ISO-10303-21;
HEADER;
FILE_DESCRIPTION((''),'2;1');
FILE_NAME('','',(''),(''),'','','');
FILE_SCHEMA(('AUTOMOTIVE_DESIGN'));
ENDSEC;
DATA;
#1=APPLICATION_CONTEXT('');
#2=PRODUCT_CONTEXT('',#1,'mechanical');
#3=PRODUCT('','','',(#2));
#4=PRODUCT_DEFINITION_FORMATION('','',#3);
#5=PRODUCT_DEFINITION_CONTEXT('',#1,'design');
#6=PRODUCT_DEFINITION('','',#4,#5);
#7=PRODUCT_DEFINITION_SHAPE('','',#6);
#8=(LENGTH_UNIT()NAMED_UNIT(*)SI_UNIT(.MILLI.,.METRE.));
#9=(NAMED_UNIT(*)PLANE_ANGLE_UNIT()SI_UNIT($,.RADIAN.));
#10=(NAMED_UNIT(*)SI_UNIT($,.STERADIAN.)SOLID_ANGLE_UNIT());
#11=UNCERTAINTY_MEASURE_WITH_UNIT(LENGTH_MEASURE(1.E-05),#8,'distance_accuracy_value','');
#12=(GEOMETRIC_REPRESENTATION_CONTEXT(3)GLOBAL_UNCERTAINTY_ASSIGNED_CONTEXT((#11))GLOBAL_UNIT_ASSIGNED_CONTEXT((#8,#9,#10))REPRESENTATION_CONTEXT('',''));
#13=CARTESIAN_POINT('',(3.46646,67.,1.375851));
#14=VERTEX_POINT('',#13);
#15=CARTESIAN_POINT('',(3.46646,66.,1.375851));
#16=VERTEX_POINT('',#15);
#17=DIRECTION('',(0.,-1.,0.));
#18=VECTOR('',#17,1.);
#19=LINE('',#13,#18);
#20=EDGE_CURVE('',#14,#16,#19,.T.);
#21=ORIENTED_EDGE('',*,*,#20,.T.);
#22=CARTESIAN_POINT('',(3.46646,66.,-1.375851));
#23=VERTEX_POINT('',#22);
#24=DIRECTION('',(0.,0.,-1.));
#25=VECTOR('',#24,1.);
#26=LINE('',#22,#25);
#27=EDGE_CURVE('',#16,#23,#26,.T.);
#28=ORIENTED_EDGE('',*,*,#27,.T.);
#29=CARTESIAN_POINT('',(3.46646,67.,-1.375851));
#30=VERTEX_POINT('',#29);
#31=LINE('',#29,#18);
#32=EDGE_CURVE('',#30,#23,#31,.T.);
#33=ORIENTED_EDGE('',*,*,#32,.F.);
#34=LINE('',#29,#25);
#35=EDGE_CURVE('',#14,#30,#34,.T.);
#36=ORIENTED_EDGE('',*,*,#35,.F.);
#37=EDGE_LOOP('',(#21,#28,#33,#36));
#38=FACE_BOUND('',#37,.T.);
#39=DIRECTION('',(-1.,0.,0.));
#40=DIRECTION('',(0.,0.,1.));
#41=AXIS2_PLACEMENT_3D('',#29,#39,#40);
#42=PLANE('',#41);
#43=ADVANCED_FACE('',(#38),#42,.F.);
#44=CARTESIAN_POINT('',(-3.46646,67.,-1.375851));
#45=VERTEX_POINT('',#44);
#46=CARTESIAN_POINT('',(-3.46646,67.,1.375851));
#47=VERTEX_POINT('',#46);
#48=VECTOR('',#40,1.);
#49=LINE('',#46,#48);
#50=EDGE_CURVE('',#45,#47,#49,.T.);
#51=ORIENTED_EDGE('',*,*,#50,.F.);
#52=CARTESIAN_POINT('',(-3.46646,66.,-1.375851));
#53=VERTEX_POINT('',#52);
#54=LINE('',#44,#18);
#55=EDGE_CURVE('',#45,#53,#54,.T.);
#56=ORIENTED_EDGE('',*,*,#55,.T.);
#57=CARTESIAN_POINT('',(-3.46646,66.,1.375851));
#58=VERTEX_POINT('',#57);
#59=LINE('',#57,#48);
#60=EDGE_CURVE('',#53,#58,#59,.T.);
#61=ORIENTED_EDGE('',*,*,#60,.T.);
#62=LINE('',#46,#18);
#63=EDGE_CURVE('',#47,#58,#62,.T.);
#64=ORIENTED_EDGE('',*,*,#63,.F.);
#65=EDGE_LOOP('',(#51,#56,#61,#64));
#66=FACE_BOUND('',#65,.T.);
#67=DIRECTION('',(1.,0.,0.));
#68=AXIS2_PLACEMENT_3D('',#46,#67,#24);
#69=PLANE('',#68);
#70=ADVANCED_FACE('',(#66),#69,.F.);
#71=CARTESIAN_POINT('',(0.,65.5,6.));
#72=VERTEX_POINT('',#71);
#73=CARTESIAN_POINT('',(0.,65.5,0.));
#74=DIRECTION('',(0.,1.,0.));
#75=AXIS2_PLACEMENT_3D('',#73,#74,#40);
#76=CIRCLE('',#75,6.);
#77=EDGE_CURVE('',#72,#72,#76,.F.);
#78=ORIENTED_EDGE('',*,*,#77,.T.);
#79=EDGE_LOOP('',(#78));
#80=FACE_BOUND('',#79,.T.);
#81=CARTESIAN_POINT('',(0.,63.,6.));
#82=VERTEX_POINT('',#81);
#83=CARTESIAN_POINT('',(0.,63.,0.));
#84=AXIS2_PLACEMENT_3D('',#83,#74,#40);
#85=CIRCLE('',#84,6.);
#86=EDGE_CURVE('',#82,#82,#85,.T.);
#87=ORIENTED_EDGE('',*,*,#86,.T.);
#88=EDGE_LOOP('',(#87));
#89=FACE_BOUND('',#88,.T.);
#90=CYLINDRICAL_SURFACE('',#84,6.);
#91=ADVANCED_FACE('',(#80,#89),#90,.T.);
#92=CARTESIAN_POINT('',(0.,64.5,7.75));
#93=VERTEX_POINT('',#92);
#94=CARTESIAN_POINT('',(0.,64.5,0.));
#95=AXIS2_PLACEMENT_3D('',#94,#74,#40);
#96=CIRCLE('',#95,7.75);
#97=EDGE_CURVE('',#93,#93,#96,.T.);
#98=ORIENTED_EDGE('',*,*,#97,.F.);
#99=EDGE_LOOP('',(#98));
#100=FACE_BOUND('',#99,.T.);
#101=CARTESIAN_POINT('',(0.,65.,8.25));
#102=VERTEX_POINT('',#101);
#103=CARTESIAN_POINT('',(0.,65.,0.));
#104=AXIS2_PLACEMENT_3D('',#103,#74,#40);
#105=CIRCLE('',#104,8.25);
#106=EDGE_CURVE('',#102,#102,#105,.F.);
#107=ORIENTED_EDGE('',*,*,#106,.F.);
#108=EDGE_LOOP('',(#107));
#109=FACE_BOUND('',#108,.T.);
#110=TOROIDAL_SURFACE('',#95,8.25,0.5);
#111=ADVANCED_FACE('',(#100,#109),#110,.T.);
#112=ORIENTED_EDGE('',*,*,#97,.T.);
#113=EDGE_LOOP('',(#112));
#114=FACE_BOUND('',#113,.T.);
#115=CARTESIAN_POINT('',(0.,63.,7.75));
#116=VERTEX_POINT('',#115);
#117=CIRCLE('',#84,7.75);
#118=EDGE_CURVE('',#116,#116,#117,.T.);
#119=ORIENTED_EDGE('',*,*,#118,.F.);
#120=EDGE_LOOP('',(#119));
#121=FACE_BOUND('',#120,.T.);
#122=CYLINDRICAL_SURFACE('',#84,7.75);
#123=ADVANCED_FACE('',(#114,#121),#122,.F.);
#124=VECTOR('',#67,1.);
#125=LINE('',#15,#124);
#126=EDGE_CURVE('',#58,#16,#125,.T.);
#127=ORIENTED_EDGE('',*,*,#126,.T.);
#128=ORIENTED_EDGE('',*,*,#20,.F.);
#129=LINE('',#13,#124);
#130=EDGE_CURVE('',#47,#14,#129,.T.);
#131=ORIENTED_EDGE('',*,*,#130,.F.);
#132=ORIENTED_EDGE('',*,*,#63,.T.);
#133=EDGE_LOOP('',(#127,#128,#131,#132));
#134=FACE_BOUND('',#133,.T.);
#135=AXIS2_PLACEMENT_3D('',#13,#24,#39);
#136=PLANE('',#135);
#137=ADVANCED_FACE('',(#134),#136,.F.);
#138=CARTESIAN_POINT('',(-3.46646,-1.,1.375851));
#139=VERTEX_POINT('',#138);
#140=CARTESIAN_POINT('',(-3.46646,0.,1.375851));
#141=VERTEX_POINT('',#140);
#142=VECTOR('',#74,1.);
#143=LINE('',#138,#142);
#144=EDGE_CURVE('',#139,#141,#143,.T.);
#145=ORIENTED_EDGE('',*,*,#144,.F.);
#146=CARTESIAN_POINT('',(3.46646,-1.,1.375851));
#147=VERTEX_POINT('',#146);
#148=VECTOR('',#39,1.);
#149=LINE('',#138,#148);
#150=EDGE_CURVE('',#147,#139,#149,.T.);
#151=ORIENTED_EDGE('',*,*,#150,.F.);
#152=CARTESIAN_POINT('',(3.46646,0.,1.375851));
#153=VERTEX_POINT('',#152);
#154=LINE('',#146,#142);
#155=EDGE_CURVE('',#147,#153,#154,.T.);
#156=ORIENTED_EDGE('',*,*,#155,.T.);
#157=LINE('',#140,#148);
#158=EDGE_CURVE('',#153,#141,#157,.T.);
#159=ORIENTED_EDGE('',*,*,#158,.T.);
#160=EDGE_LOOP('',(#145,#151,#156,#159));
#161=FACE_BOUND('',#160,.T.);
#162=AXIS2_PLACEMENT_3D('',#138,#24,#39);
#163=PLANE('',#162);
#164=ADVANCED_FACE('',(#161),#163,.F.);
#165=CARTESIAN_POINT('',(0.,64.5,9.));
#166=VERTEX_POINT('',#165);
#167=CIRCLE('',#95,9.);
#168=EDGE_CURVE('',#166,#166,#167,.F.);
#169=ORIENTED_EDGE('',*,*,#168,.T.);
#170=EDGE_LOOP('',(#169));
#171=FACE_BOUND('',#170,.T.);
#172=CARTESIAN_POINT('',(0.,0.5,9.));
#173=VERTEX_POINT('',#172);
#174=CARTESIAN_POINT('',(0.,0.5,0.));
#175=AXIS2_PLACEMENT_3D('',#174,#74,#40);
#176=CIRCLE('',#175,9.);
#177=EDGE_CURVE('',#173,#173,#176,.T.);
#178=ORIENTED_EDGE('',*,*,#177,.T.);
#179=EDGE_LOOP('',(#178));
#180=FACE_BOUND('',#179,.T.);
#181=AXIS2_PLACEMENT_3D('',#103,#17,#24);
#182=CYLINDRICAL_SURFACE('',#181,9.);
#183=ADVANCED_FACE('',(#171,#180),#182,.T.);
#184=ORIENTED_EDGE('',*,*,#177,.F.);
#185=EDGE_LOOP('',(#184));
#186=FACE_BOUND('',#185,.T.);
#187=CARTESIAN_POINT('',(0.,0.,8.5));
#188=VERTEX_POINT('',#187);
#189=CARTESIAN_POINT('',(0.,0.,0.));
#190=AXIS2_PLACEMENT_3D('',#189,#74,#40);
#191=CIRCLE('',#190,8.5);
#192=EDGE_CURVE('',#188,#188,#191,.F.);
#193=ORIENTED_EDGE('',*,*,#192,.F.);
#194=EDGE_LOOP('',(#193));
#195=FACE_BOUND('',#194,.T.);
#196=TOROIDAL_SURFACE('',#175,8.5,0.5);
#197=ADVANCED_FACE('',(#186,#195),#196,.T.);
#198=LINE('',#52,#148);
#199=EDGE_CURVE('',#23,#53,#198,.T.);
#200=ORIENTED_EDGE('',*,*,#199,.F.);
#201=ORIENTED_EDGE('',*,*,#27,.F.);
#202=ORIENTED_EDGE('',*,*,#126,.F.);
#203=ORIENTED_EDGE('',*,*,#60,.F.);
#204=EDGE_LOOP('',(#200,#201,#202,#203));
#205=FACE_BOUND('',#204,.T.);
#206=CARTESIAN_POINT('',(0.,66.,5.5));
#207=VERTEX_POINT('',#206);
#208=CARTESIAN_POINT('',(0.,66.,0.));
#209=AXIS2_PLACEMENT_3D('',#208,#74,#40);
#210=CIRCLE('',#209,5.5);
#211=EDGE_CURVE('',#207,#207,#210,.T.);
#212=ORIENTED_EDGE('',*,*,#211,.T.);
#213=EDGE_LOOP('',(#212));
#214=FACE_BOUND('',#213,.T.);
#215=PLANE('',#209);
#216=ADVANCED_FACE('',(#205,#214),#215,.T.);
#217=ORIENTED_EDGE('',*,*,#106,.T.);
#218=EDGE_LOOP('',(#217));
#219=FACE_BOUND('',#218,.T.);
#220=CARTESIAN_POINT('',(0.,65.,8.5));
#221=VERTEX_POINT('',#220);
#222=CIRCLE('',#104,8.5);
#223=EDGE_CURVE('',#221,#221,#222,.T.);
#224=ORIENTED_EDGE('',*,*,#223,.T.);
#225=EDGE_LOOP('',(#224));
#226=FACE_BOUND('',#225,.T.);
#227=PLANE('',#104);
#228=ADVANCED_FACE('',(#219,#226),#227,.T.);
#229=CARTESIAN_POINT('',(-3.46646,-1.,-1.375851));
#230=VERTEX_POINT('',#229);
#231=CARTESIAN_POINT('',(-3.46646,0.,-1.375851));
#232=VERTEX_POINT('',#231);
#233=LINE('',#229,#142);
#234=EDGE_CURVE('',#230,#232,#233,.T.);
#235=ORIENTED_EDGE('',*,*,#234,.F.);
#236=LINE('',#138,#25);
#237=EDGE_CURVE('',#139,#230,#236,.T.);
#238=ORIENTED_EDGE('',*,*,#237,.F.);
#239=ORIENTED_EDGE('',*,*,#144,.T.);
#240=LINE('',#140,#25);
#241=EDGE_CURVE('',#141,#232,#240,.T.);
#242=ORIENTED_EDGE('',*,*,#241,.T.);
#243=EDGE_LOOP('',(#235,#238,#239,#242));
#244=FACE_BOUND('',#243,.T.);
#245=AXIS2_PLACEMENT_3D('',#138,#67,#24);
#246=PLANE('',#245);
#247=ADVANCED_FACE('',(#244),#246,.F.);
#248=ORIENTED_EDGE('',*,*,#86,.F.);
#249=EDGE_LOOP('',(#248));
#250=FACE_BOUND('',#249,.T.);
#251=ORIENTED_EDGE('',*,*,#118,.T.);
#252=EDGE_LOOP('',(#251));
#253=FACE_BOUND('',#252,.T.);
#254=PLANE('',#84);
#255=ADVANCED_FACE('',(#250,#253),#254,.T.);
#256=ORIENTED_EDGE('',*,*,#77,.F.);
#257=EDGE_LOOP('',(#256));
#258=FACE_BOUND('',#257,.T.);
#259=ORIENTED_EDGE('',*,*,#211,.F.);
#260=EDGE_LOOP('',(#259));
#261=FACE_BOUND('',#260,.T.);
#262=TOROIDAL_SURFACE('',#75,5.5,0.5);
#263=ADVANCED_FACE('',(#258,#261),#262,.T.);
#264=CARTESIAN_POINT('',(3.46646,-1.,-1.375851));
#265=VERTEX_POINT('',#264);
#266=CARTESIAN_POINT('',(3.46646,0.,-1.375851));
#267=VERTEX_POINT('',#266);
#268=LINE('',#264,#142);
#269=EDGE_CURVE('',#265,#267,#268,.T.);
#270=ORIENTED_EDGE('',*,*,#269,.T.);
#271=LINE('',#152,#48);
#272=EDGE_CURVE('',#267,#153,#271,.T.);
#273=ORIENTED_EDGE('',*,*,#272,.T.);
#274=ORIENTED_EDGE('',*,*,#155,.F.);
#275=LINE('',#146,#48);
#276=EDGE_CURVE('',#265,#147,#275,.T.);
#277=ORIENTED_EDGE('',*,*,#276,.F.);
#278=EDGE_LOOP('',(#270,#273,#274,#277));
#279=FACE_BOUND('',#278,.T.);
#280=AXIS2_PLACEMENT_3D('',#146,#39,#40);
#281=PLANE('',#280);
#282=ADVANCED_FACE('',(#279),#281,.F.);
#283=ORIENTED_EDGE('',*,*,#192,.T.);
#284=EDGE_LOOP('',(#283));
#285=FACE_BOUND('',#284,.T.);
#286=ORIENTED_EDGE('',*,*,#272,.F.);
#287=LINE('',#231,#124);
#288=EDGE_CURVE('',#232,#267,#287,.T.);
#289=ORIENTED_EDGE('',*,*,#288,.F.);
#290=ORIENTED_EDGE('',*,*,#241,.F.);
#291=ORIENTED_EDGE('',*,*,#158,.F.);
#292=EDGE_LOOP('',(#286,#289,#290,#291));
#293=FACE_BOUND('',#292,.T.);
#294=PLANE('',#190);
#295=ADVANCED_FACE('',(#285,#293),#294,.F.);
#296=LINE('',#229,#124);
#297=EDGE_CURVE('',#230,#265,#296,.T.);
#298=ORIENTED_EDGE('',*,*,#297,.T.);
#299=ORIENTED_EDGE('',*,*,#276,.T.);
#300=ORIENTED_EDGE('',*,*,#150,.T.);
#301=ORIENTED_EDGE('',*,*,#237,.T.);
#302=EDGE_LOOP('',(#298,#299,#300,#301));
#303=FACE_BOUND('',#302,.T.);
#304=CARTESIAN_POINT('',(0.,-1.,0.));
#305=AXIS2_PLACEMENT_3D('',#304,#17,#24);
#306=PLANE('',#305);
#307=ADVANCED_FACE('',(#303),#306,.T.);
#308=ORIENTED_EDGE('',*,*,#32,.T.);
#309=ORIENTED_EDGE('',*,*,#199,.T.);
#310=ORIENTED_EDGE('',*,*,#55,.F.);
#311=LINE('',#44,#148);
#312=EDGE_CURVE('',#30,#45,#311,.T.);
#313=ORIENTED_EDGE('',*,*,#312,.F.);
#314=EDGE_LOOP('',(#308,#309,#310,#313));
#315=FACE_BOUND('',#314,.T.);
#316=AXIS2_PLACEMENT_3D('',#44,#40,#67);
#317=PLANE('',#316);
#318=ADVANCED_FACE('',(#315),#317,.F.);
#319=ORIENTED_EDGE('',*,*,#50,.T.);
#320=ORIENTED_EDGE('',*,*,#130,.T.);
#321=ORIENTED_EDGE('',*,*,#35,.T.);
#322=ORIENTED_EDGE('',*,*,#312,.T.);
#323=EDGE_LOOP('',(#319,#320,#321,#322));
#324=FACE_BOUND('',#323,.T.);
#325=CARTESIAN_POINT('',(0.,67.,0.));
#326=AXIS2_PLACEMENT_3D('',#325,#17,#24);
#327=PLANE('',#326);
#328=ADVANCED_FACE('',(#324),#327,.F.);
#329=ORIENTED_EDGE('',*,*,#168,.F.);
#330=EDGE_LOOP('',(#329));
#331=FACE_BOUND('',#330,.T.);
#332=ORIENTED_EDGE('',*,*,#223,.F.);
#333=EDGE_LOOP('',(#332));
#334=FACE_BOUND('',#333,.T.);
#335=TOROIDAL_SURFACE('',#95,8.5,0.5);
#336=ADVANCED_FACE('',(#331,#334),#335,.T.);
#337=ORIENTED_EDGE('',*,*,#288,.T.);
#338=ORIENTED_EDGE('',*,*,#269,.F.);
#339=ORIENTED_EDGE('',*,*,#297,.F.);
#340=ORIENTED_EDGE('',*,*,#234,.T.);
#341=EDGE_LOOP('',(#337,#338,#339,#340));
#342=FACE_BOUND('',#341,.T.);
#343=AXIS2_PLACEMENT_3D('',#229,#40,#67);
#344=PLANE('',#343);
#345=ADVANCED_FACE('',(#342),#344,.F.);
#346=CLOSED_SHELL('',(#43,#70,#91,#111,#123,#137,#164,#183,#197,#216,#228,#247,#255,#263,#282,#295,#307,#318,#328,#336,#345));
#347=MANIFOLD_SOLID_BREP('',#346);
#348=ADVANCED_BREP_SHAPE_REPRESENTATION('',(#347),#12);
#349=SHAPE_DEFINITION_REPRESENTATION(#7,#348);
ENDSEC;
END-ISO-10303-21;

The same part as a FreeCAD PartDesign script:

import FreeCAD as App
import Part
import Sketcher

V = App.Vector
Q = App.Units.Quantity


def edges_at(feature, points):
    """Names of the edges that pass closest to the given points."""
    edges = feature.Shape.Edges
    near = lambda p: min(range(len(edges)), key=lambda i: edges[i].distToShape(Part.Vertex(*p))[0])
    return sorted({f"Edge{near(p) + 1}" for p in points})

doc = App.newDocument("Part")
body = doc.addObject("PartDesign::Body", "Body")

# Sketch on XZ plane
sketch1 = body.newObject("Sketcher::SketchObject", "Sketch")
sketch1.AttachmentSupport = (doc.getObject("XZ_Plane"), [""])
sketch1.MapMode = "FlatFace"
sketch1.addGeometry(Part.Circle(V(0, 0, 0), V(0, 0, 1), 9), False)
sketch1.addConstraint([
    Sketcher.Constraint("Coincident", 0, 3, -1, 1),
    Sketcher.Constraint("Diameter", 0, Q("18 mm")),
])
pad1 = body.newObject("PartDesign::Pad", "Pad")
pad1.Profile = sketch1
pad1.Length = 65
pad1.Reversed = True

# Sketch on XZ plane
sketch2 = body.newObject("Sketcher::SketchObject", "Sketch001")
sketch2.AttachmentSupport = (doc.getObject("XZ_Plane"), [""])
sketch2.MapMode = "FlatFace"
sketch2.AttachmentOffset = App.Placement(V(0, 0, -65), App.Rotation())
sketch2.addGeometry([
    Part.Circle(V(0, 0, 0), V(0, 0, 1), 8),
    Part.Circle(V(0, 0, 0), V(0, 0, 1), 6),
], False)
sketch2.addConstraint([
    Sketcher.Constraint("Coincident", 0, 3, -1, 1),
    Sketcher.Constraint("Coincident", 1, 3, -1, 1),
    Sketcher.Constraint("Diameter", 1, Q("12 mm")),
    Sketcher.Constraint("Diameter", 0, Q("15.5 mm")),
])
pocket1 = body.newObject("PartDesign::Pocket", "Pocket")
pocket1.Profile = sketch2
pocket1.Length = 2
pocket1.Reversed = True

# Sketch on XZ plane
sketch3 = body.newObject("Sketcher::SketchObject", "Sketch002")
sketch3.AttachmentSupport = (doc.getObject("XZ_Plane"), [""])
sketch3.MapMode = "FlatFace"
sketch3.AttachmentOffset = App.Placement(V(0, 0, -66), App.Rotation())
sketch3.addGeometry(Part.Circle(V(0, 0, 0), V(0, 0, 1), 6), False)
sketch3.addConstraint([
    Sketcher.Constraint("Coincident", 0, 3, -1, 1),
    Sketcher.Constraint("Diameter", 0, Q("12 mm")),
])
pad2 = body.newObject("PartDesign::Pad", "Pad001")
pad2.Profile = sketch3
pad2.Length = 1
doc.recompute()

fillet = body.newObject("PartDesign::Fillet", "Fillet")
fillet.Base = (pad2, edges_at(pad2, [
    (0, 66, -6),
    (0, 0, -9),
    (0, 65, -9),
    (0, 65, -7.75),
]))
fillet.Radius = 0.5

# Sketch on XZ plane
sketch4 = body.newObject("Sketcher::SketchObject", "Sketch003")
sketch4.AttachmentSupport = (doc.getObject("XZ_Plane"), [""])
sketch4.MapMode = "FlatFace"
sketch4.addGeometry([
    Part.LineSegment(V(-3.5, 1.4, 0), V(-3.5, -1.4, 0)),
    Part.LineSegment(V(-3.5, -1.4, 0), V(3.5, -1.4, 0)),
    Part.LineSegment(V(3.5, -1.4, 0), V(3.5, 1.4, 0)),
    Part.LineSegment(V(3.5, 1.4, 0), V(-3.5, 1.4, 0)),
], False)
sketch4.addConstraint([
    Sketcher.Constraint("Coincident", 0, 2, 1, 1),
    Sketcher.Constraint("Coincident", 1, 2, 2, 1),
    Sketcher.Constraint("Coincident", 2, 2, 3, 1),
    Sketcher.Constraint("Coincident", 3, 2, 0, 1),
    Sketcher.Constraint("Vertical", 0),
    Sketcher.Constraint("Horizontal", 1),
    Sketcher.Constraint("Vertical", 2),
    Sketcher.Constraint("Horizontal", 3),
    Sketcher.Constraint("Symmetric", 0, 2, 2, 2, -1, 1),
    Sketcher.Constraint("DistanceX", 1, 1, 1, 2, Q("6.93292 mm")),
    Sketcher.Constraint("DistanceY", 0, 2, 0, 1, Q("2.751703 mm")),
])
pad3 = body.newObject("PartDesign::Pad", "Pad002")
pad3.Profile = sketch4
pad3.Length = 1

# Sketch on XZ plane
sketch5 = body.newObject("Sketcher::SketchObject", "Sketch004")
sketch5.AttachmentSupport = (doc.getObject("XZ_Plane"), [""])
sketch5.MapMode = "FlatFace"
sketch5.AttachmentOffset = App.Placement(V(0, 0, -66), App.Rotation())
sketch5.addGeometry([
    Part.LineSegment(V(-3.5, -1.4, 0), V(-3.5, 1.4, 0)),
    Part.LineSegment(V(-3.5, 1.4, 0), V(3.5, 1.4, 0)),
    Part.LineSegment(V(3.5, 1.4, 0), V(3.5, -1.4, 0)),
    Part.LineSegment(V(3.5, -1.4, 0), V(-3.5, -1.4, 0)),
], False)
sketch5.addConstraint([
    Sketcher.Constraint("Coincident", 0, 2, 1, 1),
    Sketcher.Constraint("Coincident", 1, 2, 2, 1),
    Sketcher.Constraint("Coincident", 2, 2, 3, 1),
    Sketcher.Constraint("Coincident", 3, 2, 0, 1),
    Sketcher.Constraint("Vertical", 0),
    Sketcher.Constraint("Horizontal", 1),
    Sketcher.Constraint("Vertical", 2),
    Sketcher.Constraint("Horizontal", 3),
    Sketcher.Constraint("Symmetric", 0, 2, 2, 2, -1, 1),
    Sketcher.Constraint("DistanceX", 1, 1, 1, 2, Q("6.93292 mm")),
    Sketcher.Constraint("DistanceY", 0, 1, 0, 2, Q("2.751703 mm")),
])
pad4 = body.newObject("PartDesign::Pad", "Pad003")
pad4.Profile = sketch5
pad4.Length = 1
pad4.Reversed = True

doc.recompute()
